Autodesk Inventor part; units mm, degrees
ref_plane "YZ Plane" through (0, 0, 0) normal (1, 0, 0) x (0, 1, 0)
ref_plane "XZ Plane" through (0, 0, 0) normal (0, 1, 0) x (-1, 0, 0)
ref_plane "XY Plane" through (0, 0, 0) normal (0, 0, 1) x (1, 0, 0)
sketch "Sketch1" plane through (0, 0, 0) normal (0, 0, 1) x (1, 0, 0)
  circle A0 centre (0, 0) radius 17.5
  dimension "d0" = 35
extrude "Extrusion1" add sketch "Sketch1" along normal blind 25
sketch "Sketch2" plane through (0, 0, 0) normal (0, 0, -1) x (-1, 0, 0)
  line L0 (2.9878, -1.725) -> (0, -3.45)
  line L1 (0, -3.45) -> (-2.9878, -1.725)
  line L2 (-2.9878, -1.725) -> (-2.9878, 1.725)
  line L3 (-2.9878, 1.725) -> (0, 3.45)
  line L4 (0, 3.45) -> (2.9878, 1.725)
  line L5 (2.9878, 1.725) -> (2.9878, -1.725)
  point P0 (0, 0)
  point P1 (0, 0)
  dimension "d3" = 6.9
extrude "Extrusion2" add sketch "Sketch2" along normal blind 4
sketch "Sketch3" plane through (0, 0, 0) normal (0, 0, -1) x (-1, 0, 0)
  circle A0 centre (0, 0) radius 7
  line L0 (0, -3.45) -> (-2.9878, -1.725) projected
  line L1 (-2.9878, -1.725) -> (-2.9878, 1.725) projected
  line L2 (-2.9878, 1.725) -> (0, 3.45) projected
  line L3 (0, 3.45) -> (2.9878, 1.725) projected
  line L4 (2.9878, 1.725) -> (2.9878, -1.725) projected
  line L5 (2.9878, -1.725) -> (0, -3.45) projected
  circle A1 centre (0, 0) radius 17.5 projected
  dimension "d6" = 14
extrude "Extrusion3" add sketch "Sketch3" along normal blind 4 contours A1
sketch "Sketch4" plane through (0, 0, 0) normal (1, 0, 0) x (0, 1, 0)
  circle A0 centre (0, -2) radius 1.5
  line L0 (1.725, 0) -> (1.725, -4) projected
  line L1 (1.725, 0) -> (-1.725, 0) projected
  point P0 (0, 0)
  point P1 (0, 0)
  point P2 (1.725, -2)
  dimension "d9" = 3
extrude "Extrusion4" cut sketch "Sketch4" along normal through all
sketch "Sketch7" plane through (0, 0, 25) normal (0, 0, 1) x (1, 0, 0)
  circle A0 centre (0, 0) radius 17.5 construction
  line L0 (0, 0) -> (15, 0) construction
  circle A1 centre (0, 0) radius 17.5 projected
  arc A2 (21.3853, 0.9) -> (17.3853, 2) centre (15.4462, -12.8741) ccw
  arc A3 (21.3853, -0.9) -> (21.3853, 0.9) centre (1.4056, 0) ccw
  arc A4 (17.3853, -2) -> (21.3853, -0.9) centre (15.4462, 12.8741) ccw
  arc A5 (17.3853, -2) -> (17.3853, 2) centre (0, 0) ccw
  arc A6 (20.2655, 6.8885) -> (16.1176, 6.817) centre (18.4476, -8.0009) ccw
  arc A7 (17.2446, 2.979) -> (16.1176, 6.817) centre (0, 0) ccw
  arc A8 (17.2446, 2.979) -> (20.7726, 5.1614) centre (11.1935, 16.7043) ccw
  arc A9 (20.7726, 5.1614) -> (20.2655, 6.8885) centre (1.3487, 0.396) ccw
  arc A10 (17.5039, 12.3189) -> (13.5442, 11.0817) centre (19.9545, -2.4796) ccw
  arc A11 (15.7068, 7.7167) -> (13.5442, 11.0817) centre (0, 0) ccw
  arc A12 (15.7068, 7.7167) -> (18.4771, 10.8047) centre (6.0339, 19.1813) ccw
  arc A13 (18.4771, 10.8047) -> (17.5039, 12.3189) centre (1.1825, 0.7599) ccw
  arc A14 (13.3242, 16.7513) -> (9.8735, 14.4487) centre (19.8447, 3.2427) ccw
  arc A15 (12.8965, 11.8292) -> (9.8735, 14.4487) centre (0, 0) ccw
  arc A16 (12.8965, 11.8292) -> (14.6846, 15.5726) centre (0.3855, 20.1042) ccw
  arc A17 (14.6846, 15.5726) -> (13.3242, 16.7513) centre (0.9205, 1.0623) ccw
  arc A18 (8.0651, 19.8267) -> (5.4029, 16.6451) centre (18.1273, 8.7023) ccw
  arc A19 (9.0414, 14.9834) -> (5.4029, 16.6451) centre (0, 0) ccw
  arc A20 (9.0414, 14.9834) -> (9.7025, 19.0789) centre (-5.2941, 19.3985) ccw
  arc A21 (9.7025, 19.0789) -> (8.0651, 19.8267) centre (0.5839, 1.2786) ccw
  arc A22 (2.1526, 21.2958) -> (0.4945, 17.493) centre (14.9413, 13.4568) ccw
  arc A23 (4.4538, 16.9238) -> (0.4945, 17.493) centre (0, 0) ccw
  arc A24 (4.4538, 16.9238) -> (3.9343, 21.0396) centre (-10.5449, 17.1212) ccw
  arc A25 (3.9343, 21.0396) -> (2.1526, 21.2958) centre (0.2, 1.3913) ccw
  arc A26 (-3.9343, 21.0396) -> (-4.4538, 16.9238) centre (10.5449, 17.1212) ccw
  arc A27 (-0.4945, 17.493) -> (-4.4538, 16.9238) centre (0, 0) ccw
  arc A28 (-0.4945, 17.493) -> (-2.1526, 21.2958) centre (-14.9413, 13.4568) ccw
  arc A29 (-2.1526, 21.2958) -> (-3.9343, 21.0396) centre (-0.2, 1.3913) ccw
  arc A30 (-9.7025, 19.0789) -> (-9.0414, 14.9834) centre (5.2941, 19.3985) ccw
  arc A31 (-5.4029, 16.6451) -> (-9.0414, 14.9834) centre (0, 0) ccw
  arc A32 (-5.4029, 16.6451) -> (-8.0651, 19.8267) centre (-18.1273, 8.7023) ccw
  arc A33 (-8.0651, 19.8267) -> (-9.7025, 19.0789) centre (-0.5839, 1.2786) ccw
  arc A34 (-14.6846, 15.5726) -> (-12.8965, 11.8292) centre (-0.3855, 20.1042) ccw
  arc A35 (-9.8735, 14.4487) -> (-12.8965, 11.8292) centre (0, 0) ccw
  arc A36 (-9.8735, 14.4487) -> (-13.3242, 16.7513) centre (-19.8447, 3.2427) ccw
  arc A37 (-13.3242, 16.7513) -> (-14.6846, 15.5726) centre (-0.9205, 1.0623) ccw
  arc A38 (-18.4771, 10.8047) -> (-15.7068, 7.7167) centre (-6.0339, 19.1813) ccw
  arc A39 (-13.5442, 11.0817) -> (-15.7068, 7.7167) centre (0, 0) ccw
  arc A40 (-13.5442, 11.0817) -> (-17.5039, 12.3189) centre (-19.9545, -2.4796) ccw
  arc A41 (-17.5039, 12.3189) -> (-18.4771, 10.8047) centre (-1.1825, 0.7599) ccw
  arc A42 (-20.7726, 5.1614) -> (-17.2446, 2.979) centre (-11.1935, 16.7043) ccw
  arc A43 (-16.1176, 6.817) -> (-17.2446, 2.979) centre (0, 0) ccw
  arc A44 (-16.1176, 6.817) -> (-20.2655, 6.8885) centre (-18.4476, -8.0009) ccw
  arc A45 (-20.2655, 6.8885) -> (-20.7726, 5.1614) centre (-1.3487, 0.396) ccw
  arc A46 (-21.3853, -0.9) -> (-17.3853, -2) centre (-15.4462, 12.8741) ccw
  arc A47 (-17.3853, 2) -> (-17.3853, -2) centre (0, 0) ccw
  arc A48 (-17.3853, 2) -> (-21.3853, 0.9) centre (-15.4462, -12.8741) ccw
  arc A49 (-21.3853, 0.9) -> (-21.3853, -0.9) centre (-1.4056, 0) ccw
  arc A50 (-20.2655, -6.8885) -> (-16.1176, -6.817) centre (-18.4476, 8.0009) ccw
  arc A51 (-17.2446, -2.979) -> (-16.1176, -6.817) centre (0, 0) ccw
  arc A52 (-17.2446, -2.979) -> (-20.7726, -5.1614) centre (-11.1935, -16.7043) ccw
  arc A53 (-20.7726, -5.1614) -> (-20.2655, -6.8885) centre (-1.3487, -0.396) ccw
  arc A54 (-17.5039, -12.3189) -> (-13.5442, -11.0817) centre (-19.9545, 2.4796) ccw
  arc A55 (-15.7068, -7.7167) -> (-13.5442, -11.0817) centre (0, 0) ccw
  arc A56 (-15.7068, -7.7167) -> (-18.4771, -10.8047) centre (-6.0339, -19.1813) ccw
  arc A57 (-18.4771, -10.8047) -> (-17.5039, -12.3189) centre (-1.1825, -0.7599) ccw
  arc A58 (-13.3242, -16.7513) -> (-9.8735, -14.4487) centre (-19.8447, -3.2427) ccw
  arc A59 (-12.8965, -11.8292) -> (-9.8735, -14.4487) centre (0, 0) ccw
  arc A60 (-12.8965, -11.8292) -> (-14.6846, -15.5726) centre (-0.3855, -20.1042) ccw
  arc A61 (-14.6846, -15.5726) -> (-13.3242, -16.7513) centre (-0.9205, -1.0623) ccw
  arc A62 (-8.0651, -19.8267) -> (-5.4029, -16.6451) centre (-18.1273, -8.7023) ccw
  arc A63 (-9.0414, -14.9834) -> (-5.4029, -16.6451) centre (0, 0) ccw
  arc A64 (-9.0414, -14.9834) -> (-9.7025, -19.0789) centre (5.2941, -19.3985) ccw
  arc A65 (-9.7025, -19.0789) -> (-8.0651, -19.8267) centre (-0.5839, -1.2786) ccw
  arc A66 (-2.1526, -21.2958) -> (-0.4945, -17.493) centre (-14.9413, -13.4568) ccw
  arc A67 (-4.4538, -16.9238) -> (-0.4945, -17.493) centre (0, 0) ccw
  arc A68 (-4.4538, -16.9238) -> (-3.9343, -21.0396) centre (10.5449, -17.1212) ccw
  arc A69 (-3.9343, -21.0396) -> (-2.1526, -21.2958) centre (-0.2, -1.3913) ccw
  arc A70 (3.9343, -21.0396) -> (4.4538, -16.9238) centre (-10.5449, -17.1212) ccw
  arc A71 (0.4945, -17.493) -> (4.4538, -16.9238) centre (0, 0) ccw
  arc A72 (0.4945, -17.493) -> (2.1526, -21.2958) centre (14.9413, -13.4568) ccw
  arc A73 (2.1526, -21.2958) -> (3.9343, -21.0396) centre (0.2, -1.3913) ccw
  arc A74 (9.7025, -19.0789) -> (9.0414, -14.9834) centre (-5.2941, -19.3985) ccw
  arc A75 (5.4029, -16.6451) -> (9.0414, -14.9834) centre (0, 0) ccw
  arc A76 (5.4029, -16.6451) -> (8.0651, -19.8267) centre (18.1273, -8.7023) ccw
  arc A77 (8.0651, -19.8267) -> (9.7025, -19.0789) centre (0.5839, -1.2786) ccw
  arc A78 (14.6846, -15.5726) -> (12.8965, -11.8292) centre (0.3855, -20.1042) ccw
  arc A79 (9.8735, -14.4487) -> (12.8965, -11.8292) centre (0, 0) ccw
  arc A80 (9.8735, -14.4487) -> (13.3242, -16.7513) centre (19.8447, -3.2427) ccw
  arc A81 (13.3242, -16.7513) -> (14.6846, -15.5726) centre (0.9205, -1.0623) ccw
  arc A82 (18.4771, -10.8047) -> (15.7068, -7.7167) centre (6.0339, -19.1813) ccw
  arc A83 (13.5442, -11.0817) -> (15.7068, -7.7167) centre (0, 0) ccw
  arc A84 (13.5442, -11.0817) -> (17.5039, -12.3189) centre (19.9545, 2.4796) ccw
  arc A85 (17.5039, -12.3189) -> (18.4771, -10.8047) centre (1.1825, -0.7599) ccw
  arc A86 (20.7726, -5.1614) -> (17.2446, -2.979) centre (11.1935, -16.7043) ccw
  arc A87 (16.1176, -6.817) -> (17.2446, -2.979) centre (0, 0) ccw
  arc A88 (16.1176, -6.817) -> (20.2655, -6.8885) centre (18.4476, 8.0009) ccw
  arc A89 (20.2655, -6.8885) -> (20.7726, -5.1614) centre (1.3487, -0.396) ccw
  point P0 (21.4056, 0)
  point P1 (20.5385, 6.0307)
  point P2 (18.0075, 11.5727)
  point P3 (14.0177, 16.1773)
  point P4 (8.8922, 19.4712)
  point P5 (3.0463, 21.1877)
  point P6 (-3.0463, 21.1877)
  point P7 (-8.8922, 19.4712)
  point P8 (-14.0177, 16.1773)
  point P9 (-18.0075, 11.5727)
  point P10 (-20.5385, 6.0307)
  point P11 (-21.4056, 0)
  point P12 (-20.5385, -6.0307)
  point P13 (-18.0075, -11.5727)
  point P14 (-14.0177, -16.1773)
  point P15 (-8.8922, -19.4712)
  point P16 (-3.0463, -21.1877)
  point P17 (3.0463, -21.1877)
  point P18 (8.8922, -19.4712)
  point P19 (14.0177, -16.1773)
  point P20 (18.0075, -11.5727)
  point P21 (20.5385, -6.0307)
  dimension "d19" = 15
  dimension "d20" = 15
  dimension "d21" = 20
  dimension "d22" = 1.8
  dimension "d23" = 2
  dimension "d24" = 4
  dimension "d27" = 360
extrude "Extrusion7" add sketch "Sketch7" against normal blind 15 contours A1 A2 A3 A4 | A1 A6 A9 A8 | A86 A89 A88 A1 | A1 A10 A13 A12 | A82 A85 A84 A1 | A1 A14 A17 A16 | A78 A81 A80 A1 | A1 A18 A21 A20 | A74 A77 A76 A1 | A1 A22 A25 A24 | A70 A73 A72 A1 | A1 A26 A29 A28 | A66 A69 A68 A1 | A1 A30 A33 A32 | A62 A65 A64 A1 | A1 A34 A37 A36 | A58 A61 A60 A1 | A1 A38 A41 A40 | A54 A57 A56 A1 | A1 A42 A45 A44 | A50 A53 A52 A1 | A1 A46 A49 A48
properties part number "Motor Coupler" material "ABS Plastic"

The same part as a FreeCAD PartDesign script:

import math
import FreeCAD as App
import Part
import Sketcher
from FreeCAD import Vector
Q = App.Units.Quantity

doc = App.newDocument("Part")
body = doc.addObject("PartDesign::Body", "Body")

# Sketch on XY plane
sketch1 = body.newObject("Sketcher::SketchObject", "Sketch")
sketch1.AttachmentSupport = (doc.getObject("XY_Plane"), [""])
sketch1.MapMode = "FlatFace"
sketch1.addGeometry(Part.Circle(Vector(0, 0, 0), Vector(0, 0, 1), 18), False)
sketch1.addConstraint([
    Sketcher.Constraint("Coincident", 0, 3, -1, 1),
    Sketcher.Constraint("Diameter", 0, 35.0),
])
pad1 = body.newObject("PartDesign::Pad", "Pad")
pad1.Profile = sketch1
pad1.Length = 25

# Sketch on XY plane
sketch2 = body.newObject("Sketcher::SketchObject", "Sketch001")
sketch2.AttachmentSupport = (doc.getObject("XY_Plane"), [""])
sketch2.MapMode = "FlatFace"
sketch2.addGeometry([
    Part.LineSegment(Vector(0, -3.5, 0), Vector(-3, -1.7, 0)),  # 0
    Part.LineSegment(Vector(-3, -1.7, 0), Vector(-3, 1.7, 0)),  # 1
    Part.LineSegment(Vector(-3, 1.7, 0), Vector(0, 3.5, 0)),  # 2
    Part.LineSegment(Vector(0, 3.5, 0), Vector(3, 1.7, 0)),  # 3
    Part.LineSegment(Vector(3, 1.7, 0), Vector(3, -1.7, 0)),  # 4
    Part.LineSegment(Vector(3, -1.7, 0), Vector(0, -3.5, 0)),  # 5
], False)
sketch2.addConstraint([
    Sketcher.Constraint("Coincident", 0, 2, 1, 1),
    Sketcher.Constraint("Coincident", 1, 2, 2, 1),
    Sketcher.Constraint("Coincident", 2, 2, 3, 1),
    Sketcher.Constraint("Coincident", 3, 2, 4, 1),
    Sketcher.Constraint("Coincident", 4, 2, 5, 1),
    Sketcher.Constraint("Coincident", 5, 2, 0, 1),
    Sketcher.Constraint("Vertical", 1),
    Sketcher.Constraint("Vertical", 4),
    Sketcher.Constraint("Symmetric", 0, 2, 3, 2, -1, 1),
    Sketcher.Constraint("Symmetric", 2, 2, 5, 2, -1, 1),
    Sketcher.Constraint("PointOnObject", 2, 2, -2),
    Sketcher.Constraint("Parallel", 2, 5),
    Sketcher.Constraint("Horizontal", 1, 2, 3, 2),
    Sketcher.Constraint("DistanceY", 5, 2, 2, 2, 6.9),
    Sketcher.Constraint("Angle", 0, Q("150 deg")),
    Sketcher.Constraint("DistanceY", 1, 1, 1, 2, 3.45),
])
pad2 = body.newObject("PartDesign::Pad", "Pad001")
pad2.Profile = sketch2
pad2.Length = 4
pad2.Reversed = True

# Sketch on XY plane
sketch3 = body.newObject("Sketcher::SketchObject", "Sketch002")
sketch3.AttachmentSupport = (doc.getObject("XY_Plane"), [""])
sketch3.MapMode = "FlatFace"
sketch3.addGeometry([
    Part.Circle(Vector(0, 0, 0), Vector(0, 0, 1), 18),
    Part.Circle(Vector(0, 0, 0), Vector(0, 0, 1), 7),
], False)
sketch3.addConstraint([
    Sketcher.Constraint("Coincident", 0, 3, -1, 1),
    Sketcher.Constraint("Coincident", 1, 3, -1, 1),
    Sketcher.Constraint("Diameter", 1, 14.0),
    Sketcher.Constraint("Diameter", 0, 35.0),
])
pad3 = body.newObject("PartDesign::Pad", "Pad002")
pad3.Profile = sketch3
pad3.Length = 4
pad3.Reversed = True

# Sketch on YZ plane
sketch4 = body.newObject("Sketcher::SketchObject", "Sketch003")
sketch4.AttachmentSupport = (doc.getObject("YZ_Plane"), [""])
sketch4.MapMode = "FlatFace"
sketch4.addGeometry(Part.Circle(Vector(0, -2, 0), Vector(0, 0, 1), 1.5), False)
sketch4.addConstraint([
    Sketcher.Constraint("PointOnObject", 0, 3, -2),
    Sketcher.Constraint("Diameter", 0, 3.0),
    Sketcher.Constraint("DistanceY", 0, 3, -1, 1, 2.0),
])
pocket1 = body.newObject("PartDesign::Pocket", "Pocket")
pocket1.Profile = sketch4
pocket1.Type = "ThroughAll"
pocket1.Reversed = True

# Sketch on XY plane
sketch5 = body.newObject("Sketcher::SketchObject", "Sketch004")
sketch5.AttachmentSupport = (doc.getObject("XY_Plane"), [""])
sketch5.MapMode = "FlatFace"
sketch5.AttachmentOffset = App.Placement(Vector(0, 0, 25), App.Rotation())
sketch5.addGeometry([
    Part.ArcOfCircle(Part.Circle(Vector(0, 0, 0), Vector(0, 0, 1), 17.5), math.radians(-6.56), math.radians(6.56)),  # 0
    Part.ArcOfCircle(Part.Circle(Vector(15.4, 12.9, 0), Vector(0, 0, 1), 15), math.radians(-82.57), math.radians(-66.68)),  # 1
    Part.ArcOfCircle(Part.Circle(Vector(1.4, 0, 0), Vector(0, 0, 1), 20), math.radians(-2.58), math.radians(2.58)),  # 2
    Part.ArcOfCircle(Part.Circle(Vector(15.4, -12.9, 0), Vector(0, 0, 1), 15), math.radians(66.68), math.radians(82.57)),  # 3
    Part.ArcOfCircle(Part.Circle(Vector(0, 0, 0), Vector(0, 0, 1), 17.5), math.radians(9.8), math.radians(22.93)),  # 4
    Part.ArcOfCircle(Part.Circle(Vector(11.2, 16.7, 0), Vector(0, 0, 1), 15), math.radians(-66.21), math.radians(-50.31)),  # 5
    Part.ArcOfCircle(Part.Circle(Vector(1.3, 0.4, 0), Vector(0, 0, 1), 20), math.radians(13.79), math.radians(18.94)),  # 6
    Part.ArcOfCircle(Part.Circle(Vector(18.4, -8, 0), Vector(0, 0, 1), 15), math.radians(83.04), math.radians(98.94)),  # 7
    Part.ArcOfCircle(Part.Circle(Vector(11.2, -16.7, 0), Vector(0, 0, 1), 15), math.radians(50.31), math.radians(66.21)),  # 8
    Part.ArcOfCircle(Part.Circle(Vector(0, 0, 0), Vector(0, 0, 1), 17.5), math.radians(-22.93), math.radians(-9.8)),  # 9
    Part.ArcOfCircle(Part.Circle(Vector(18.4, 8, 0), Vector(0, 0, 1), 15), math.radians(-98.94), math.radians(-83.04)),  # 10
    Part.ArcOfCircle(Part.Circle(Vector(1.4, -0.4, 0), Vector(0, 0, 1), 20), math.radians(-18.94), math.radians(-13.78)),  # 11
    Part.ArcOfCircle(Part.Circle(Vector(0, 0, 0), Vector(0, 0, 1), 17.5), math.radians(26.16), math.radians(39.29)),  # 12
    Part.ArcOfCircle(Part.Circle(Vector(6, 19.2, 0), Vector(0, 0, 1), 15), math.radians(-49.85), math.radians(-33.95)),  # 13
    Part.ArcOfCircle(Part.Circle(Vector(1.2, 0.8, 0), Vector(0, 0, 1), 20), math.radians(30.15), math.radians(35.31)),  # 14
    Part.ArcOfCircle(Part.Circle(Vector(20, -2.5, 0), Vector(0, 0, 1), 15), math.radians(99.4), math.radians(115.3)),  # 15
    Part.ArcOfCircle(Part.Circle(Vector(6, -19.2, 0), Vector(0, 0, 1), 15), math.radians(33.95), math.radians(49.84)),  # 16
    Part.ArcOfCircle(Part.Circle(Vector(0, 0, 0), Vector(0, 0, 1), 17.5), math.radians(-39.29), math.radians(-26.16)),  # 17
    Part.ArcOfCircle(Part.Circle(Vector(20, 2.5, 0), Vector(0, 0, 1), 15), math.radians(-115.3), math.radians(-99.4)),  # 18
    Part.ArcOfCircle(Part.Circle(Vector(1.2, -0.7, 0), Vector(0, 0, 1), 20), math.radians(-35.3), math.radians(-30.15)),  # 19
    Part.ArcOfCircle(Part.Circle(Vector(0, 0, 0), Vector(0, 0, 1), 17.5), math.radians(42.53), math.radians(55.65)),  # 20
    Part.ArcOfCircle(Part.Circle(Vector(0.4, 20.1, 0), Vector(0, 0, 1), 15), math.radians(-33.48), math.radians(-17.58)),  # 21
    Part.ArcOfCircle(Part.Circle(Vector(0.9, 1.1, 0), Vector(0, 0, 1), 20), math.radians(46.51), math.radians(51.68)),  # 22
    Part.ArcOfCircle(Part.Circle(Vector(19.8, 3.2, 0), Vector(0, 0, 1), 15), math.radians(115.77), math.radians(131.66)),  # 23
    Part.ArcOfCircle(Part.Circle(Vector(0.4, -20.1, 0), Vector(0, 0, 1), 15), math.radians(17.58), math.radians(33.48)),  # 24
    Part.ArcOfCircle(Part.Circle(Vector(0, 0, 0), Vector(0, 0, 1), 17.5), math.radians(-55.65), math.radians(-42.53)),  # 25
    Part.ArcOfCircle(Part.Circle(Vector(19.8, -3.2, 0), Vector(0, 0, 1), 15), math.radians(-131.66), math.radians(-115.77)),  # 26
    Part.ArcOfCircle(Part.Circle(Vector(0.9, -1, 0), Vector(0, 0, 1), 20), math.radians(-51.67), math.radians(-46.52)),  # 27
    Part.ArcOfCircle(Part.Circle(Vector(0, 0, 0), Vector(0, 0, 1), 17.5), math.radians(58.89), math.radians(72.02)),  # 28
    Part.ArcOfCircle(Part.Circle(Vector(-5.3, 19.4, 0), Vector(0, 0, 1), 15), math.radians(-17.12), math.radians(-1.22)),  # 29
    Part.ArcOfCircle(Part.Circle(Vector(0.6, 1.3, 0), Vector(0, 0, 1), 20), math.radians(62.88), math.radians(68.03)),  # 30
    Part.ArcOfCircle(Part.Circle(Vector(18.1, 8.7, 0), Vector(0, 0, 1), 15), math.radians(132.13), math.radians(148.03)),  # 31
    Part.ArcOfCircle(Part.Circle(Vector(-5.3, -19.4, 0), Vector(0, 0, 1), 15), math.radians(1.22), math.radians(17.12)),  # 32
    Part.ArcOfCircle(Part.Circle(Vector(0, 0, 0), Vector(0, 0, 1), 17.5), math.radians(-72.02), math.radians(-58.89)),  # 33
    Part.ArcOfCircle(Part.Circle(Vector(18.1, -8.7, 0), Vector(0, 0, 1), 15), math.radians(-148.03), math.radians(-132.13)),  # 34
    Part.ArcOfCircle(Part.Circle(Vector(0.6, -1.3, 0), Vector(0, 0, 1), 20), math.radians(-68.03), math.radians(-62.87)),  # 35
    Part.ArcOfCircle(Part.Circle(Vector(0, 0, 0), Vector(0, 0, 1), 17.5), math.radians(75.26), math.radians(88.38)),  # 36
    Part.ArcOfCircle(Part.Circle(Vector(-10.5, 17.1, 0), Vector(0, 0, 1), 15), math.radians(-0.75), math.radians(15.14)),  # 37
    Part.ArcOfCircle(Part.Circle(Vector(0.2, 1.4, 0), Vector(0, 0, 1), 20), math.radians(79.24), math.radians(84.39)),  # 38
    Part.ArcOfCircle(Part.Circle(Vector(14.9, 13.5, 0), Vector(0, 0, 1), 15), math.radians(148.49), math.radians(164.39)),  # 39
    Part.ArcOfCircle(Part.Circle(Vector(-10.5, -17.1, 0), Vector(0, 0, 1), 15), math.radians(-15.14), math.radians(0.76)),  # 40
    Part.ArcOfCircle(Part.Circle(Vector(0, 0, 0), Vector(0, 0, 1), 17.5), math.radians(-88.38), math.radians(-75.26)),  # 41
    Part.ArcOfCircle(Part.Circle(Vector(14.9, -13.5, 0), Vector(0, 0, 1), 15), math.radians(-164.39), math.radians(-148.49)),  # 42
    Part.ArcOfCircle(Part.Circle(Vector(0.2, -1.4, 0), Vector(0, 0, 1), 20), math.radians(-84.4), math.radians(-79.24)),  # 43
    Part.ArcOfCircle(Part.Circle(Vector(0, 0, 0), Vector(0, 0, 1), 17.5), math.radians(91.62), math.radians(104.74)),  # 44
    Part.ArcOfCircle(Part.Circle(Vector(-14.9, 13.5, 0), Vector(0, 0, 1), 15), math.radians(15.61), math.radians(31.51)),  # 45
    Part.ArcOfCircle(Part.Circle(Vector(-0.2, 1.4, 0), Vector(0, 0, 1), 20), math.radians(95.6), math.radians(100.76)),  # 46
    Part.ArcOfCircle(Part.Circle(Vector(10.5, 17.1, 0), Vector(0, 0, 1), 15), math.radians(164.86), math.radians(180.76)),  # 47
    Part.ArcOfCircle(Part.Circle(Vector(-14.9, -13.5, 0), Vector(0, 0, 1), 15), math.radians(-31.51), math.radians(-15.61)),  # 48
    Part.ArcOfCircle(Part.Circle(Vector(0, 0, 0), Vector(0, 0, 1), 17.5), math.radians(-104.74), math.radians(-91.62)),  # 49
    Part.ArcOfCircle(Part.Circle(Vector(10.5, -17.1, 0), Vector(0, 0, 1), 15), math.radians(179.25), math.radians(195.14)),  # 50
    Part.ArcOfCircle(Part.Circle(Vector(-0.2, -1.4, 0), Vector(0, 0, 1), 20), math.radians(-100.76), math.radians(-95.61)),  # 51
    Part.ArcOfCircle(Part.Circle(Vector(0, 0, 0), Vector(0, 0, 1), 17.5), math.radians(107.98), math.radians(121.11)),  # 52
    Part.ArcOfCircle(Part.Circle(Vector(-18.1, 8.7, 0), Vector(0, 0, 1), 15), math.radians(31.97), math.radians(47.87)),  # 53
    Part.ArcOfCircle(Part.Circle(Vector(-0.6, 1.3, 0), Vector(0, 0, 1), 20), math.radians(111.97), math.radians(117.13)),  # 54
    Part.ArcOfCircle(Part.Circle(Vector(5.3, 19.4, 0), Vector(0, 0, 1), 15), math.radians(-178.78), math.radians(-162.88)),  # 55
    Part.ArcOfCircle(Part.Circle(Vector(-18.1, -8.7, 0), Vector(0, 0, 1), 15), math.radians(-47.87), math.radians(-31.97)),  # 56
    Part.ArcOfCircle(Part.Circle(Vector(0, 0, 0), Vector(0, 0, 1), 17.5), math.radians(-121.11), math.radians(-107.98)),  # 57
    Part.ArcOfCircle(Part.Circle(Vector(5.3, -19.4, 0), Vector(0, 0, 1), 15), math.radians(162.88), math.radians(178.78)),  # 58
    Part.ArcOfCircle(Part.Circle(Vector(-0.6, -1.3, 0), Vector(0, 0, 1), 20), math.radians(-117.12), math.radians(-111.97)),  # 59
    Part.ArcOfCircle(Part.Circle(Vector(0, 0, 0), Vector(0, 0, 1), 17.5), math.radians(124.35), math.radians(137.47)),  # 60
    Part.ArcOfCircle(Part.Circle(Vector(-19.8, 3.2, 0), Vector(0, 0, 1), 15), math.radians(48.34), math.radians(64.23)),  # 61
    Part.ArcOfCircle(Part.Circle(Vector(-0.9, 1, 0), Vector(0, 0, 1), 20), math.radians(128.33), math.radians(133.48)),  # 62
    Part.ArcOfCircle(Part.Circle(Vector(-0.4, 20.1, 0), Vector(0, 0, 1), 15), math.radians(-162.42), math.radians(-146.52)),  # 63
    Part.ArcOfCircle(Part.Circle(Vector(-19.8, -3.2, 0), Vector(0, 0, 1), 15), math.radians(-64.23), math.radians(-48.34)),  # 64
    Part.ArcOfCircle(Part.Circle(Vector(0, 0, 0), Vector(0, 0, 1), 17.5), math.radians(-137.47), math.radians(-124.35)),  # 65
    Part.ArcOfCircle(Part.Circle(Vector(-0.4, -20.1, 0), Vector(0, 0, 1), 15), math.radians(146.52), math.radians(162.42)),  # 66
    Part.ArcOfCircle(Part.Circle(Vector(-0.9, -1.1, 0), Vector(0, 0, 1), 20), math.radians(-133.49), math.radians(-128.32)),  # 67
    Part.ArcOfCircle(Part.Circle(Vector(0, 0, 0), Vector(0, 0, 1), 17.5), math.radians(140.71), math.radians(153.84)),  # 68
    Part.ArcOfCircle(Part.Circle(Vector(-20, -2.5, 0), Vector(0, 0, 1), 15), math.radians(64.7), math.radians(80.6)),  # 69
    Part.ArcOfCircle(Part.Circle(Vector(-1.2, 0.7, 0), Vector(0, 0, 1), 20), math.radians(144.7), math.radians(149.85)),  # 70
    Part.ArcOfCircle(Part.Circle(Vector(-6, 19.2, 0), Vector(0, 0, 1), 15), math.radians(-146.05), math.radians(-130.16)),  # 71
    Part.ArcOfCircle(Part.Circle(Vector(-20, 2.5, 0), Vector(0, 0, 1), 15), math.radians(-80.6), math.radians(-64.7)),  # 72
    Part.ArcOfCircle(Part.Circle(Vector(0, 0, 0), Vector(0, 0, 1), 17.5), math.radians(-153.84), math.radians(-140.71)),  # 73
    Part.ArcOfCircle(Part.Circle(Vector(-6, -19.2, 0), Vector(0, 0, 1), 15), math.radians(130.15), math.radians(146.05)),  # 74
    Part.ArcOfCircle(Part.Circle(Vector(-1.2, -0.8, 0), Vector(0, 0, 1), 20), math.radians(-149.85), math.radians(-144.69)),  # 75
    Part.ArcOfCircle(Part.Circle(Vector(0, 0, 0), Vector(0, 0, 1), 17.5), math.radians(157.07), math.radians(170.2)),  # 76
    Part.ArcOfCircle(Part.Circle(Vector(-18.4, -8, 0), Vector(0, 0, 1), 15), math.radians(81.06), math.radians(96.96)),  # 77
    Part.ArcOfCircle(Part.Circle(Vector(-1.4, 0.4, 0), Vector(0, 0, 1), 20), math.radians(161.06), math.radians(166.22)),  # 78
    Part.ArcOfCircle(Part.Circle(Vector(-11.2, 16.7, 0), Vector(0, 0, 1), 15), math.radians(-129.69), math.radians(-113.79)),  # 79
    Part.ArcOfCircle(Part.Circle(Vector(-18.4, 8, 0), Vector(0, 0, 1), 15), math.radians(-96.96), math.radians(-81.06)),  # 80
    Part.ArcOfCircle(Part.Circle(Vector(0, 0, 0), Vector(0, 0, 1), 17.5), math.radians(-170.2), math.radians(-157.07)),  # 81
    Part.ArcOfCircle(Part.Circle(Vector(-11.2, -16.7, 0), Vector(0, 0, 1), 15), math.radians(113.79), math.radians(129.69)),  # 82
    Part.ArcOfCircle(Part.Circle(Vector(-1.3, -0.4, 0), Vector(0, 0, 1), 20), math.radians(-166.21), math.radians(-161.06)),  # 83
    Part.ArcOfCircle(Part.Circle(Vector(0, 0, 0), Vector(0, 0, 1), 17.5), math.radians(173.44), math.radians(186.56)),  # 84
    Part.ArcOfCircle(Part.Circle(Vector(-15.4, -12.9, 0), Vector(0, 0, 1), 15), math.radians(97.43), math.radians(113.32)),  # 85
    Part.ArcOfCircle(Part.Circle(Vector(-1.4, 0, 0), Vector(0, 0, 1), 20), math.radians(177.42), math.radians(182.58)),  # 86
    Part.ArcOfCircle(Part.Circle(Vector(-15.4, 12.9, 0), Vector(0, 0, 1), 15), math.radians(-113.32), math.radians(-97.43)),  # 87
], False)
sketch5.addConstraint([
    Sketcher.Constraint("Coincident", 0, 1, 1, 1),
    Sketcher.Constraint("Coincident", 1, 2, 2, 1),
    Sketcher.Constraint("Coincident", 2, 2, 3, 1),
    Sketcher.Constraint("Coincident", 3, 2, 0, 2),
    Sketcher.Constraint("Coincident", 4, 1, 5, 1),
    Sketcher.Constraint("Coincident", 5, 2, 6, 1),
    Sketcher.Constraint("Coincident", 6, 2, 7, 1),
    Sketcher.Constraint("Coincident", 7, 2, 4, 2),
    Sketcher.Constraint("Coincident", 8, 2, 9, 2),
    Sketcher.Constraint("Coincident", 9, 1, 10, 1),
    Sketcher.Constraint("Coincident", 10, 2, 11, 1),
    Sketcher.Constraint("Coincident", 11, 2, 8, 1),
    Sketcher.Constraint("Coincident", 12, 1, 13, 1),
    Sketcher.Constraint("Coincident", 13, 2, 14, 1),
    Sketcher.Constraint("Coincident", 14, 2, 15, 1),
    Sketcher.Constraint("Coincident", 15, 2, 12, 2),
    Sketcher.Constraint("Coincident", 16, 2, 17, 2),
    Sketcher.Constraint("Coincident", 17, 1, 18, 1),
    Sketcher.Constraint("Coincident", 18, 2, 19, 1),
    Sketcher.Constraint("Coincident", 19, 2, 16, 1),
    Sketcher.Constraint("Coincident", 20, 1, 21, 1),
    Sketcher.Constraint("Coincident", 21, 2, 22, 1),
    Sketcher.Constraint("Coincident", 22, 2, 23, 1),
    Sketcher.Constraint("Coincident", 23, 2, 20, 2),
    Sketcher.Constraint("Coincident", 24, 2, 25, 2),
    Sketcher.Constraint("Coincident", 25, 1, 26, 1),
    Sketcher.Constraint("Coincident", 26, 2, 27, 1),
    Sketcher.Constraint("Coincident", 27, 2, 24, 1),
    Sketcher.Constraint("Coincident", 28, 1, 29, 1),
    Sketcher.Constraint("Coincident", 29, 2, 30, 1),
    Sketcher.Constraint("Coincident", 30, 2, 31, 1),
    Sketcher.Constraint("Coincident", 31, 2, 28, 2),
    Sketcher.Constraint("Coincident", 32, 2, 33, 2),
    Sketcher.Constraint("Coincident", 33, 1, 34, 1),
    Sketcher.Constraint("Coincident", 34, 2, 35, 1),
    Sketcher.Constraint("Coincident", 35, 2, 32, 1),
    Sketcher.Constraint("Coincident", 36, 1, 37, 1),
    Sketcher.Constraint("Coincident", 37, 2, 38, 1),
    Sketcher.Constraint("Coincident", 38, 2, 39, 1),
    Sketcher.Constraint("Coincident", 39, 2, 36, 2),
    Sketcher.Constraint("Coincident", 40, 2, 41, 2),
    Sketcher.Constraint("Coincident", 41, 1, 42, 1),
    Sketcher.Constraint("Coincident", 42, 2, 43, 1),
    Sketcher.Constraint("Coincident", 43, 2, 40, 1),
    Sketcher.Constraint("Coincident", 44, 1, 45, 1),
    Sketcher.Constraint("Coincident", 45, 2, 46, 1),
    Sketcher.Constraint("Coincident", 46, 2, 47, 1),
    Sketcher.Constraint("Coincident", 47, 2, 44, 2),
    Sketcher.Constraint("Coincident", 48, 2, 49, 2),
    Sketcher.Constraint("Coincident", 49, 1, 50, 1),
    Sketcher.Constraint("Coincident", 50, 2, 51, 1),
    Sketcher.Constraint("Coincident", 51, 2, 48, 1),
    Sketcher.Constraint("Coincident", 52, 1, 53, 1),
    Sketcher.Constraint("Coincident", 53, 2, 54, 1),
    Sketcher.Constraint("Coincident", 54, 2, 55, 1),
    Sketcher.Constraint("Coincident", 55, 2, 52, 2),
    Sketcher.Constraint("Coincident", 56, 2, 57, 2),
    Sketcher.Constraint("Coincident", 57, 1, 58, 1),
    Sketcher.Constraint("Coincident", 58, 2, 59, 1),
    Sketcher.Constraint("Coincident", 59, 2, 56, 1),
    Sketcher.Constraint("Coincident", 60, 1, 61, 1),
    Sketcher.Constraint("Coincident", 61, 2, 62, 1),
    Sketcher.Constraint("Coincident", 62, 2, 63, 1),
    Sketcher.Constraint("Coincident", 63, 2, 60, 2),
    Sketcher.Constraint("Coincident", 64, 2, 65, 2),
    Sketcher.Constraint("Coincident", 65, 1, 66, 1),
    Sketcher.Constraint("Coincident", 66, 2, 67, 1),
    Sketcher.Constraint("Coincident", 67, 2, 64, 1),
    Sketcher.Constraint("Coincident", 68, 1, 69, 1),
    Sketcher.Constraint("Coincident", 69, 2, 70, 1),
    Sketcher.Constraint("Coincident", 70, 2, 71, 1),
    Sketcher.Constraint("Coincident", 71, 2, 68, 2),
    Sketcher.Constraint("Coincident", 72, 2, 73, 2),
    Sketcher.Constraint("Coincident", 73, 1, 74, 1),
    Sketcher.Constraint("Coincident", 74, 2, 75, 1),
    Sketcher.Constraint("Coincident", 75, 2, 72, 1),
    Sketcher.Constraint("Coincident", 76, 1, 77, 1),
    Sketcher.Constraint("Coincident", 77, 2, 78, 1),
    Sketcher.Constraint("Coincident", 78, 2, 79, 1),
    Sketcher.Constraint("Coincident", 79, 2, 76, 2),
    Sketcher.Constraint("Coincident", 80, 2, 81, 2),
    Sketcher.Constraint("Coincident", 81, 1, 82, 1),
    Sketcher.Constraint("Coincident", 82, 2, 83, 1),
    Sketcher.Constraint("Coincident", 83, 2, 80, 1),
    Sketcher.Constraint("Coincident", 84, 1, 85, 1),
    Sketcher.Constraint("Coincident", 85, 2, 86, 1),
    Sketcher.Constraint("Coincident", 86, 2, 87, 1),
    Sketcher.Constraint("Coincident", 87, 2, 84, 2),
    Sketcher.Constraint("Coincident", 0, 3, -1, 1),
    Sketcher.Constraint("Coincident", 4, 3, -1, 1),
    Sketcher.Constraint("Coincident", 9, 3, -1, 1),
    Sketcher.Constraint("Coincident", 12, 3, -1, 1),
    Sketcher.Constraint("Coincident", 17, 3, -1, 1),
    Sketcher.Constraint("Coincident", 20, 3, -1, 1),
    Sketcher.Constraint("Coincident", 25, 3, -1, 1),
    Sketcher.Constraint("Coincident", 28, 3, -1, 1),
    Sketcher.Constraint("Coincident", 33, 3, -1, 1),
    Sketcher.Constraint("Coincident", 36, 3, -1, 1),
    Sketcher.Constraint("Coincident", 41, 3, -1, 1),
    Sketcher.Constraint("Coincident", 44, 3, -1, 1),
    Sketcher.Constraint("Coincident", 49, 3, -1, 1),
    Sketcher.Constraint("Coincident", 52, 3, -1, 1),
    Sketcher.Constraint("Coincident", 57, 3, -1, 1),
    Sketcher.Constraint("Coincident", 60, 3, -1, 1),
    Sketcher.Constraint("Coincident", 65, 3, -1, 1),
    Sketcher.Constraint("Coincident", 68, 3, -1, 1),
    Sketcher.Constraint("Coincident", 73, 3, -1, 1),
    Sketcher.Constraint("Coincident", 76, 3, -1, 1),
    Sketcher.Constraint("Coincident", 81, 3, -1, 1),
    Sketcher.Constraint("Coincident", 84, 3, -1, 1),
    Sketcher.Constraint("Equal", 1, 3),
    Sketcher.Constraint("Equal", 0, 4),
    Sketcher.Constraint("Equal", 3, 7),
    Sketcher.Constraint("Equal", 4, 9),
    Sketcher.Constraint("Equal", 7, 10),
    Sketcher.Constraint("Equal", 9, 12),
    Sketcher.Constraint("Equal", 10, 15),
    Sketcher.Constraint("Equal", 12, 17),
    Sketcher.Constraint("Equal", 15, 18),
    Sketcher.Constraint("Equal", 17, 20),
    Sketcher.Constraint("Equal", 18, 23),
    Sketcher.Constraint("Equal", 20, 25),
    Sketcher.Constraint("Equal", 23, 26),
    Sketcher.Constraint("Equal", 25, 28),
    Sketcher.Constraint("Equal", 26, 29),
    Sketcher.Constraint("Equal", 29, 32),
    Sketcher.Constraint("Equal", 28, 33),
    Sketcher.Constraint("Equal", 33, 36),
    Sketcher.Constraint("Equal", 24, 37),
    Sketcher.Constraint("Equal", 32, 39),
    Sketcher.Constraint("Equal", 21, 40),
    Sketcher.Constraint("Equal", 36, 41),
    Sketcher.Constraint("Equal", 39, 42),
    Sketcher.Constraint("Equal", 41, 44),
    Sketcher.Constraint("Equal", 42, 45),
    Sketcher.Constraint("Equal", 43, 46),
    Sketcher.Constraint("Equal", 40, 47),
    Sketcher.Constraint("Equal", 45, 48),
    Sketcher.Constraint("Equal", 44, 49),
    Sketcher.Constraint("Equal", 37, 50),
    Sketcher.Constraint("Equal", 38, 51),
    Sketcher.Constraint("Equal", 49, 52),
    Sketcher.Constraint("Equal", 34, 53),
    Sketcher.Constraint("Equal", 35, 54),
    Sketcher.Constraint("Equal", 48, 55),
    Sketcher.Constraint("Equal", 31, 56),
    Sketcher.Constraint("Equal", 52, 57),
    Sketcher.Constraint("Equal", 55, 58),
    Sketcher.Constraint("Equal", 30, 59),
    Sketcher.Constraint("Equal", 57, 60),
    Sketcher.Constraint("Equal", 58, 61),
    Sketcher.Constraint("Equal", 27, 62),
    Sketcher.Constraint("Equal", 50, 63),
    Sketcher.Constraint("Equal", 61, 64),
    Sketcher.Constraint("Equal", 60, 65),
    Sketcher.Constraint("Equal", 47, 66),
    Sketcher.Constraint("Equal", 22, 67),
    Sketcher.Constraint("Equal", 65, 68),
    Sketcher.Constraint("Equal", 64, 69),
    Sketcher.Constraint("Equal", 19, 70),
    Sketcher.Constraint("Equal", 16, 71),
    Sketcher.Constraint("Equal", 69, 72),
    Sketcher.Constraint("Equal", 68, 73),
    Sketcher.Constraint("Equal", 13, 74),
    Sketcher.Constraint("Equal", 14, 75),
    Sketcher.Constraint("Equal", 73, 76),
    Sketcher.Constraint("Equal", 72, 77),
    Sketcher.Constraint("Equal", 11, 78),
    Sketcher.Constraint("Equal", 8, 79),
    Sketcher.Constraint("Equal", 77, 80),
    Sketcher.Constraint("Equal", 76, 81),
    Sketcher.Constraint("Equal", 5, 82),
    Sketcher.Constraint("Equal", 6, 83),
    Sketcher.Constraint("Equal", 81, 84),
    Sketcher.Constraint("Equal", 80, 85),
    Sketcher.Constraint("Equal", 2, 86),
    Sketcher.Constraint("Equal", 85, 87),
    Sketcher.Constraint("Symmetric", 42, 3, 45, 3, -1, 1),
    Sketcher.Constraint("Symmetric", 43, 3, 46, 3, -1, 1),
    Sketcher.Constraint("Symmetric", 40, 3, 47, 3, -1, 1),
    Sketcher.Constraint("Symmetric", 39, 3, 48, 3, -1, 1),
    Sketcher.Constraint("Symmetric", 37, 3, 50, 3, -1, 1),
    Sketcher.Constraint("Symmetric", 38, 3, 51, 3, -1, 1),
    Sketcher.Constraint("Symmetric", 34, 3, 53, 3, -1, 1),
    Sketcher.Constraint("Symmetric", 35, 3, 54, 3, -1, 1),
    Sketcher.Constraint("Symmetric", 32, 3, 55, 3, -1, 1),
    Sketcher.Constraint("Symmetric", 31, 3, 56, 3, -1, 1),
    Sketcher.Constraint("Symmetric", 29, 3, 58, 3, -1, 1),
    Sketcher.Constraint("Symmetric", 30, 3, 59, 3, -1, 1),
    Sketcher.Constraint("Symmetric", 26, 3, 61, 3, -1, 1),
    Sketcher.Constraint("Symmetric", 27, 3, 62, 3, -1, 1),
    Sketcher.Constraint("Symmetric", 24, 3, 63, 3, -1, 1),
    Sketcher.Constraint("Symmetric", 23, 3, 64, 3, -1, 1),
    Sketcher.Constraint("Symmetric", 21, 3, 66, 3, -1, 1),
    Sketcher.Constraint("Symmetric", 22, 3, 67, 3, -1, 1),
    Sketcher.Constraint("Symmetric", 18, 3, 69, 3, -1, 1),
    Sketcher.Constraint("Symmetric", 19, 3, 70, 3, -1, 1),
    Sketcher.Constraint("Symmetric", 16, 3, 71, 3, -1, 1),
    Sketcher.Constraint("Symmetric", 15, 3, 72, 3, -1, 1),
    Sketcher.Constraint("Symmetric", 13, 3, 74, 3, -1, 1),
    Sketcher.Constraint("Symmetric", 14, 3, 75, 3, -1, 1),
    Sketcher.Constraint("Symmetric", 10, 3, 77, 3, -1, 1),
    Sketcher.Constraint("Symmetric", 11, 3, 78, 3, -1, 1),
    Sketcher.Constraint("Symmetric", 8, 3, 79, 3, -1, 1),
    Sketcher.Constraint("Symmetric", 7, 3, 80, 3, -1, 1),
    Sketcher.Constraint("Symmetric", 5, 3, 82, 3, -1, 1),
    Sketcher.Constraint("Symmetric", 6, 3, 83, 3, -1, 1),
    Sketcher.Constraint("Symmetric", 1, 3, 85, 3, -1, 1),
    Sketcher.Constraint("Symmetric", 2, 3, 86, 3, -1, 1),
    Sketcher.Constraint("Symmetric", 3, 3, 87, 3, -1, 1),
    Sketcher.Constraint("Symmetric", 39, 3, 45, 3, -2),
    Sketcher.Constraint("Symmetric", 29, 3, 55, 3, -2),
    Sketcher.Constraint("Symmetric", 23, 3, 61, 3, -2),
    Sketcher.Constraint("Symmetric", 15, 3, 69, 3, -2),
    Sketcher.Constraint("Symmetric", 7, 3, 77, 3, -2),
    Sketcher.Constraint("Symmetric", 3, 3, 85, 3, -2),
    Sketcher.Constraint("Symmetric", 37, 2, 46, 2, -2),
    Sketcher.Constraint("Symmetric", 30, 2, 53, 2, -2),
    Sketcher.Constraint("Symmetric", 21, 2, 62, 2, -2),
    Sketcher.Constraint("Symmetric", 13, 2, 70, 2, -2),
    Sketcher.Constraint("Symmetric", 5, 2, 78, 2, -2),
    Sketcher.Constraint("PointOnObject", 2, 3, -1),
    Sketcher.Constraint("Horizontal", 38, 2, 45, 2),
    Sketcher.Constraint("Horizontal", 36, 1, 47, 2),
    Sketcher.Constraint("Horizontal", 31, 2, 52, 1),
    Sketcher.Constraint("Horizontal", 29, 2, 54, 2),
    Sketcher.Constraint("Horizontal", 22, 2, 61, 2),
    Sketcher.Constraint("Horizontal", 20, 1, 63, 2),
    Sketcher.Constraint("Horizontal", 12, 1, 71, 2),
    Sketcher.Constraint("Horizontal", 4, 1, 79, 2),
    Sketcher.Constraint("Vertical", 6, 2, 10, 2),
    Sketcher.Constraint("Vertical", 14, 2, 18, 2),
    Sketcher.Constraint("Radius", 1, 15.0),
    Sketcher.Constraint("Radius", 2, 20.0),
    Sketcher.Constraint("DistanceY", 0, 1, -1, 1, 2.0),
    Sketcher.Constraint("Radius", 0, 17.5),
    Sketcher.Constraint("Radius", 35, 19.99),
    Sketcher.Constraint("Radius", 22, 19.966),
    Sketcher.Constraint("Radius", 27, 20.034),
    Sketcher.Constraint("Radius", 31, 14.997),
    Sketcher.Constraint("Radius", 34, 15.003),
    Sketcher.Constraint("Radius", 37, 15.002),
    Sketcher.Constraint("Radius", 40, 14.998),
    Sketcher.Constraint("DistanceY", 1, 2, -1, 1, 0.9),
    Sketcher.Constraint("Radius", 5, 14.9966),
    Sketcher.Constraint("Radius", 6, 20.0117),
    Sketcher.Constraint("Radius", 8, 15.0033),
    Sketcher.Constraint("Radius", 11, 19.9882),
    Sketcher.Constraint("Radius", 13, 14.9977),
    Sketcher.Constraint("Radius", 14, 19.9678),
    Sketcher.Constraint("Radius", 16, 15.0024),
    Sketcher.Constraint("Radius", 19, 20.0323),
    Sketcher.Constraint("Radius", 30, 20.0101),
    Sketcher.Constraint("Radius", 38, 20.0133),
    Sketcher.Constraint("Radius", 43, 19.9868),
    Sketcher.Constraint("DistanceX", -1, 1, 14, 3, 1.21),
    Sketcher.Constraint("DistanceY", -1, 1, 1, 3, 12.874),
    Sketcher.Constraint("DistanceX", -1, 1, 5, 3, 11.195),
    Sketcher.Constraint("DistanceY", -1, 1, 6, 3, 0.393),
    Sketcher.Constraint("DistanceY", 7, 3, -1, 1, 8.001),
    Sketcher.Constraint("DistanceY", 8, 3, -1, 1, 16.707),
    Sketcher.Constraint("DistanceX", -1, 1, 16, 3, 6.032),
    Sketcher.Constraint("DistanceY", 24, 3, -1, 1, 20.105),
    Sketcher.Constraint("DistanceY", 27, 3, -1, 1, 1.036),
    Sketcher.Constraint("DistanceX", 29, 3, -1, 1, 5.294),
    Sketcher.Constraint("DistanceX", -1, 1, 35, 3, 0.588),
    Sketcher.Constraint("DistanceY", 35, 3, -1, 1, 1.288),
    Sketcher.Constraint("DistanceY", -1, 1, 37, 3, 17.121),
    Sketcher.Constraint("DistanceX", 40, 3, -1, 1, 10.543),
    Sketcher.Constraint("DistanceY", -1, 1, 7, 2, 6.817),
    Sketcher.Constraint("DistanceX", -1, 1, 13, 2, 18.477),
    Sketcher.Constraint("DistanceX", -1, 1, 14, 2, 17.504),
    Sketcher.Constraint("DistanceY", -1, 1, 14, 2, 12.319),
    Sketcher.Constraint("DistanceX", -1, 1, 30, 2, 8.065),
    Sketcher.Constraint("DistanceX", -1, 1, 31, 2, 5.403),
    Sketcher.Constraint("DistanceY", 41, 1, -1, 1, 17.493),
    Sketcher.Constraint("DistanceX", -1, 1, 6, 3, 1.3374),
    Sketcher.Constraint("DistanceX", -1, 1, 15, 3, 19.9545),
    Sketcher.Constraint("DistanceX", -1, 1, 21, 3, 0.3871),
    Sketcher.Constraint("DistanceX", -1, 1, 22, 3, 0.9433),
    Sketcher.Constraint("DistanceX", -1, 1, 23, 3, 19.8447),
    Sketcher.Constraint("DistanceY", -1, 1, 23, 3, 3.2427),
    Sketcher.Constraint("DistanceY", -1, 1, 29, 3, 19.3985),
    Sketcher.Constraint("DistanceX", -1, 1, 38, 3, 0.1978),
    Sketcher.Constraint("DistanceY", -1, 1, 38, 3, 1.3782),
    Sketcher.Constraint("DistanceX", -1, 1, 39, 3, 14.9413),
])
pad4 = body.newObject("PartDesign::Pad", "Pad003")
pad4.Profile = sketch5
pad4.Length = 15
pad4.Reversed = True

doc.recompute()
